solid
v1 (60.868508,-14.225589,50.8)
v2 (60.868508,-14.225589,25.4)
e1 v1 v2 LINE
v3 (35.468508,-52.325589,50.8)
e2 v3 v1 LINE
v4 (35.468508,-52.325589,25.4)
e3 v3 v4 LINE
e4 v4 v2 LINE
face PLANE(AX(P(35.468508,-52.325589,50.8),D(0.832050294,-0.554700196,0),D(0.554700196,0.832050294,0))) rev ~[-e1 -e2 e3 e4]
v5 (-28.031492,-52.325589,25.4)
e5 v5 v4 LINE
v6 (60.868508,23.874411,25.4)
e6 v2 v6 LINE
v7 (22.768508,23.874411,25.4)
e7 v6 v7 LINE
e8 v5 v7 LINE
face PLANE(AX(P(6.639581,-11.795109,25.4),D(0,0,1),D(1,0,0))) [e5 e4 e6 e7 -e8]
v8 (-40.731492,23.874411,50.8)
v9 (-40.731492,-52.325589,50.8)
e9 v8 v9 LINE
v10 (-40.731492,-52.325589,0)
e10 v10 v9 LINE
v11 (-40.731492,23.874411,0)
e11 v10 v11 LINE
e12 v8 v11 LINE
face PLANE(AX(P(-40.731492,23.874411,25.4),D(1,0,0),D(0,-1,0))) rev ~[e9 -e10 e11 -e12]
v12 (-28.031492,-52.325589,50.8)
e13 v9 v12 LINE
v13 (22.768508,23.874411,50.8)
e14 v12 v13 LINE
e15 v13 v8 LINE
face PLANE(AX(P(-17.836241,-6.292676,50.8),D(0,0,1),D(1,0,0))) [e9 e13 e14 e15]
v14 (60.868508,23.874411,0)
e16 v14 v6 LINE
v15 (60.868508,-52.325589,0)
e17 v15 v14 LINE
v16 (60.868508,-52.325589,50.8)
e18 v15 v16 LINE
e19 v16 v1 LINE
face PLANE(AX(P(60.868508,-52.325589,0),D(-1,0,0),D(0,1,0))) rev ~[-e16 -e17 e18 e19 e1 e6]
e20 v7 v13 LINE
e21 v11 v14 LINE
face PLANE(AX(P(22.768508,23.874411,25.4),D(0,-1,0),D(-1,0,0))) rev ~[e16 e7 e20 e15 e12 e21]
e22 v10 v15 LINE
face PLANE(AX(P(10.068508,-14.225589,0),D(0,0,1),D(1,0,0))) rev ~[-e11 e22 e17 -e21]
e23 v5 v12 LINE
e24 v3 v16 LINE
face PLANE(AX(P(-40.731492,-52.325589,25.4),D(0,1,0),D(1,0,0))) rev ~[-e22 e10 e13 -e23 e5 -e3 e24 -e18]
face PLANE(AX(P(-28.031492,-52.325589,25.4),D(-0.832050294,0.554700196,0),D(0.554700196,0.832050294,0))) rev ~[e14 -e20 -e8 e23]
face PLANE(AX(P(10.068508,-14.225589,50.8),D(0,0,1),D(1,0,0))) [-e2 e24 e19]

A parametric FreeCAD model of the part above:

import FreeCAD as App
import Part
import Sketcher
Q = App.Units.Quantity


def add_polygon(sketch, points):
    """Adds a closed chain of lines whose ends are joined by coincident constraints."""
    first, n = sketch.GeometryCount, len(points)
    for a, b in zip(points, points[1:] + points[:1]):
        sketch.addGeometry(Part.LineSegment(App.Vector(*a, 0), App.Vector(*b, 0)), False)
    for i in range(n):
        sketch.addConstraint(Sketcher.Constraint("Coincident", first + i, 2, first + (i + 1) % n, 1))

doc = App.newDocument("Part")
params = doc.addObject("Spreadsheet::Sheet", "Params")
for row, (alias, value) in enumerate([
    ("sketch1_width", "4 in"),
    ("sketch1_height", "3 in"),
    ("pad1_length", "2 in"),
    ("sketch2_width", "3 in"),
    ("sketch2_width2", "4 in"),
    ("sketch2_height", "1.5 in"),
    ("pocket1_length", "1 in"),
    ("sketch3_height", "3 in"),
    ("sketch3_width", "0.5 in"),
    ("sketch3_width2", "2.5 in"),
    ("pad2_length", "1 in"),
], start=1):
    params.set(f"A{row}", alias)
    params.set(f"B{row}", "=" + value)
    params.setAlias(f"B{row}", alias)

body = doc.addObject("PartDesign::Body", "Body")

# Sketch on XY plane
sketch1 = body.newObject("Sketcher::SketchObject", "Sketch")
sketch1.AttachmentSupport = (doc.getObject("XY_Plane"), [""])
sketch1.MapMode = "FlatFace"
add_polygon(sketch1, [(-41, 24), (-41, -52), (61, -52), (61, 24)])  # lines 0-3
sketch1.addConstraint([
    Sketcher.Constraint("Vertical", 0),
    Sketcher.Constraint("Horizontal", 1),
    Sketcher.Constraint("Vertical", 2),
    Sketcher.Constraint("Horizontal", 3),
    Sketcher.Constraint("DistanceX", 1, 1, 1, 2, Q("4 in")),
    Sketcher.Constraint("DistanceY", 0, 2, 0, 1, Q("3 in")),
    Sketcher.Constraint("DistanceY", 0, 2, -1, 1, 52.325589),
    Sketcher.Constraint("DistanceX", 0, 2, -1, 1, 40.731492),
])
sketch1.setExpression("Constraints[8]", "Params.sketch1_width")
sketch1.setExpression("Constraints[9]", "Params.sketch1_height")
pad1 = body.newObject("PartDesign::Pad", "Pad")
pad1.Profile = sketch1
pad1.setExpression("Length", "Params.pad1_length")

# Sketch on XY plane
sketch2 = body.newObject("Sketcher::SketchObject", "Sketch001")
sketch2.AttachmentSupport = (doc.getObject("XY_Plane"), [""])
sketch2.MapMode = "FlatFace"
sketch2.AttachmentOffset = App.Placement(App.Vector(0, 0, 2 * 25.4), App.Rotation())
add_polygon(sketch2, [(-41, -52), (35, -52), (61, -14), (61, 24), (-41, 24)])  # lines 0-4
sketch2.addConstraint([
    Sketcher.Constraint("Horizontal", 0),
    Sketcher.Constraint("Vertical", 2),
    Sketcher.Constraint("Horizontal", 3),
    Sketcher.Constraint("Vertical", 4),
    Sketcher.Constraint("Equal", 0, 4),
    Sketcher.Constraint("DistanceX", 0, 1, 0, 2, Q("3 in")),
    Sketcher.Constraint("DistanceX", 3, 2, 3, 1, Q("4 in")),
    Sketcher.Constraint("DistanceY", 2, 1, 2, 2, Q("1.5 in")),
    Sketcher.Constraint("DistanceY", 0, 2, -1, 1, 52.325589),
    Sketcher.Constraint("DistanceX", -1, 1, 0, 2, 35.468508),
])
sketch2.setExpression("Constraints[10]", "Params.sketch2_width")
sketch2.setExpression("Constraints[11]", "Params.sketch2_width2")
sketch2.setExpression("Constraints[12]", "Params.sketch2_height")
pocket1 = body.newObject("PartDesign::Pocket", "Pocket")
pocket1.Profile = sketch2
pocket1.setExpression("Length", "Params.pocket1_length")

# Sketch on XY plane
sketch3 = body.newObject("Sketcher::SketchObject", "Sketch002")
sketch3.AttachmentSupport = (doc.getObject("XY_Plane"), [""])
sketch3.MapMode = "FlatFace"
sketch3.AttachmentOffset = App.Placement(App.Vector(0, 0, 1 * 25.4), App.Rotation())
add_polygon(sketch3, [(-41, 24), (-41, -52), (-28, -52), (23, 24)])  # lines 0-3
sketch3.addConstraint([
    Sketcher.Constraint("Vertical", 0),
    Sketcher.Constraint("Horizontal", 1),
    Sketcher.Constraint("Horizontal", 3),
    Sketcher.Constraint("DistanceY", 0, 2, 0, 1, Q("3 in")),
    Sketcher.Constraint("DistanceX", 1, 1, 1, 2, Q("0.5 in")),
    Sketcher.Constraint("DistanceX", 3, 2, 3, 1, Q("2.5 in")),
    Sketcher.Constraint("DistanceY", 0, 2, -1, 1, 52.325589),
    Sketcher.Constraint("DistanceX", 1, 2, -1, 1, 28.031492),
])
sketch3.setExpression("Constraints[7]", "Params.sketch3_height")
sketch3.setExpression("Constraints[8]", "Params.sketch3_width")
sketch3.setExpression("Constraints[9]", "Params.sketch3_width2")
pad2 = body.newObject("PartDesign::Pad", "Pad001")
pad2.Profile = sketch3
pad2.setExpression("Length", "Params.pad2_length")

doc.recompute()
